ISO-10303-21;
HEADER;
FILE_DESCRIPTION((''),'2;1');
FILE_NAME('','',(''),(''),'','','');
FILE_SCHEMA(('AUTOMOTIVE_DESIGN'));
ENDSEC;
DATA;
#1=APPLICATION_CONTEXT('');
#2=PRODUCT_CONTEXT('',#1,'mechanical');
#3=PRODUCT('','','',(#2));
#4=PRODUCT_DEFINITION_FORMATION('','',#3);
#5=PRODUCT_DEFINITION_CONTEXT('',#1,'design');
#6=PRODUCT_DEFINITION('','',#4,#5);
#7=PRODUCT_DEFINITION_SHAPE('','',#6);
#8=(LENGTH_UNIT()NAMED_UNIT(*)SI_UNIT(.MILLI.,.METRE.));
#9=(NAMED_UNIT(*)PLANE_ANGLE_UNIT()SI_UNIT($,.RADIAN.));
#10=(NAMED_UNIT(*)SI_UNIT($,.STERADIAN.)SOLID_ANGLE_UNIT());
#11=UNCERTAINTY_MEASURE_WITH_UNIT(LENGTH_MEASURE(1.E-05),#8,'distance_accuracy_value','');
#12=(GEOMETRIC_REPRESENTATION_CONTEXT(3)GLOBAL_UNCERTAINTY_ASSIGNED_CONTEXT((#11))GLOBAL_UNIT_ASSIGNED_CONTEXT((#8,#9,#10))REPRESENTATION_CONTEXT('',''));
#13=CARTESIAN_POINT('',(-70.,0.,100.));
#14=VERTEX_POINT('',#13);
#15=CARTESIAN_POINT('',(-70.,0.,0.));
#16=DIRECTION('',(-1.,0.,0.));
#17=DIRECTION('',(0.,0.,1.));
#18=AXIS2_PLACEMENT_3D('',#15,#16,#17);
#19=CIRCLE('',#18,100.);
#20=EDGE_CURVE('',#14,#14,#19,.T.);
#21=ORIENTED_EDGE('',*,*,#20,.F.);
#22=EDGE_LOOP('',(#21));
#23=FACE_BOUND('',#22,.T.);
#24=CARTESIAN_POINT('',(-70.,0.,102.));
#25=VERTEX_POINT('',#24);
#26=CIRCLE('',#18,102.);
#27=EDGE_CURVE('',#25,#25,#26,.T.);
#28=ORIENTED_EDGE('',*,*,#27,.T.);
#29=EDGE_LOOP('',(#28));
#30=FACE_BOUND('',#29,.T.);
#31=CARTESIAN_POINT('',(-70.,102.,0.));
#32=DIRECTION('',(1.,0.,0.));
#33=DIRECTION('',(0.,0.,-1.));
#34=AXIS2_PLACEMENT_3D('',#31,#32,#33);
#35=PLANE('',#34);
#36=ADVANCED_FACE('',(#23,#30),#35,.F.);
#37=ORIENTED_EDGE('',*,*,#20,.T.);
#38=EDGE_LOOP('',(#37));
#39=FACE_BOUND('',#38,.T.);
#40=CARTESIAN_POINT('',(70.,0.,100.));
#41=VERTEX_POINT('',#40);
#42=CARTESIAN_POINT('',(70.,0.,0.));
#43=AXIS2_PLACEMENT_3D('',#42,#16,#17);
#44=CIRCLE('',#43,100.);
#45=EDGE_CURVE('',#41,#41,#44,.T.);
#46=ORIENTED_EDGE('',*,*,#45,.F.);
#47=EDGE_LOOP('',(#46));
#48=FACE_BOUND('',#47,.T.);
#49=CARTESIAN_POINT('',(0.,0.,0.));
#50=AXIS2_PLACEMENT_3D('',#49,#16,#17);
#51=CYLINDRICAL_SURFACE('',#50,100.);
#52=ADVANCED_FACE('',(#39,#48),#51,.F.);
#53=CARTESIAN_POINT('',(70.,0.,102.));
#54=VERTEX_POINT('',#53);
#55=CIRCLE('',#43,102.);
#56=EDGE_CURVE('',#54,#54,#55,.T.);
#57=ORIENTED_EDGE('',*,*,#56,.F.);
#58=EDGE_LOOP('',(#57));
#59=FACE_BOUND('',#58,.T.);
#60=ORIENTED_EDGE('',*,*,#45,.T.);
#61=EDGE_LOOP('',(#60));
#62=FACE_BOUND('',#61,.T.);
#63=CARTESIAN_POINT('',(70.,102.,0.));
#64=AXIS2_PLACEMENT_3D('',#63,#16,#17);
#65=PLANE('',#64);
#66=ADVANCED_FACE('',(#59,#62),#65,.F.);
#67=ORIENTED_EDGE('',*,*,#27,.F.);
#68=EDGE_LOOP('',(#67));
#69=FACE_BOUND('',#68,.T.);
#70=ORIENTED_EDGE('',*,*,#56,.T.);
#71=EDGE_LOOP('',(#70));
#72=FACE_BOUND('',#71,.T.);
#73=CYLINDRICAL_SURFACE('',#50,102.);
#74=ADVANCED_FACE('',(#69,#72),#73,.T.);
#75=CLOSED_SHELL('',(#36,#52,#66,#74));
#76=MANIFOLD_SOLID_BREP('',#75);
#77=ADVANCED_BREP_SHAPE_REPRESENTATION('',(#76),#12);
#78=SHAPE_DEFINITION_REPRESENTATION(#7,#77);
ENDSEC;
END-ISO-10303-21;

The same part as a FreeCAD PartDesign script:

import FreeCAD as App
import Part
import Sketcher

V = App.Vector
Q = App.Units.Quantity


def add_polygon(sketch, points):
    """Adds a closed chain of lines whose ends are joined by coincident constraints."""
    first, n = sketch.GeometryCount, len(points)
    for a, b in zip(points, points[1:] + points[:1]):
        sketch.addGeometry(Part.LineSegment(App.Vector(*a, 0), App.Vector(*b, 0)), False)
    for i in range(n):
        sketch.addConstraint(Sketcher.Constraint("Coincident", first + i, 2, first + (i + 1) % n, 1))

doc = App.newDocument("Part")
body = doc.addObject("PartDesign::Body", "Body")

# Sketch on XY plane
sketch1 = body.newObject("Sketcher::SketchObject", "Sketch")
sketch1.AttachmentSupport = (doc.getObject("XY_Plane"), [""])
sketch1.MapMode = "FlatFace"
add_polygon(sketch1, [(-70, 102), (-70, 100), (70, 100), (70, 102)])  # lines 0-3
sketch1.addConstraint(Sketcher.Constraint("Vertical", 0))
sketch1.addConstraint(Sketcher.Constraint("Horizontal", 1))
sketch1.addConstraint(Sketcher.Constraint("Vertical", 2))
sketch1.addConstraint(Sketcher.Constraint("Horizontal", 3))
sketch1.addConstraint(Sketcher.Constraint("DistanceX", 1, 1, 1, 2, Q("140 mm")))
sketch1.addConstraint(Sketcher.Constraint("DistanceY", 0, 2, 0, 1, Q("2 mm")))
sketch1.addConstraint(Sketcher.Constraint("DistanceX", 0, 2, -1, 1, Q("70 mm")))
sketch1.addConstraint(Sketcher.Constraint("DistanceY", -1, 1, 0, 2, Q("100 mm")))
revolution = body.newObject("PartDesign::Revolution", "Revolution")
revolution.Profile = sketch1
revolution.ReferenceAxis = (sketch1, ["H_Axis"])
revolution.Angle = 360

doc.recompute()
